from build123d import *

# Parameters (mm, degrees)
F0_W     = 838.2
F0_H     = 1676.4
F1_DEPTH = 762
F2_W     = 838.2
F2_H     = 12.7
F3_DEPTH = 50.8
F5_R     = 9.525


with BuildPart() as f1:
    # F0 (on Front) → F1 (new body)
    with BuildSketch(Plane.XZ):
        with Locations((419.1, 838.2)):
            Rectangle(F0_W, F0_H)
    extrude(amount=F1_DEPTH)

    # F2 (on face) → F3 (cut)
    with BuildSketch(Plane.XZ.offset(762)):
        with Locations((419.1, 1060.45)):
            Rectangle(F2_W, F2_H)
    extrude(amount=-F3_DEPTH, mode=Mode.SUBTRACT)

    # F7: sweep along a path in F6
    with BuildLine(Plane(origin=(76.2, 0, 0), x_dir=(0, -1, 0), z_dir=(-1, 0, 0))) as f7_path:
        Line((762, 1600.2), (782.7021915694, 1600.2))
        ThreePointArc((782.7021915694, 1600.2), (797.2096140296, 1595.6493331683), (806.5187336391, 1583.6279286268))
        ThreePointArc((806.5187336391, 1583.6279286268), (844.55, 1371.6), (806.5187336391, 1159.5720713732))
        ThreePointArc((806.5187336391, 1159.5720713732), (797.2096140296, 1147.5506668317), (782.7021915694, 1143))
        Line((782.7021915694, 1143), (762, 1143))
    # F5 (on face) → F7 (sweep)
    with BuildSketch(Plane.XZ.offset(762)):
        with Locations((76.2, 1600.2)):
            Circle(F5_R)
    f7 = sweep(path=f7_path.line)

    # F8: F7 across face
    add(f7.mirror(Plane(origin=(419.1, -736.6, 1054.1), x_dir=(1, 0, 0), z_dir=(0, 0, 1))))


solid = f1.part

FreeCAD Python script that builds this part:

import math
import FreeCAD as App
import Part
import Sketcher

V = App.Vector
Q = App.Units.Quantity

doc = App.newDocument("Part")
body = doc.addObject("PartDesign::Body", "Body")

# Sketch on XZ plane
sketch1 = doc.addObject("Sketcher::SketchObject", "Sketch")
body.addObject(sketch1)
sketch1.AttachmentSupport = (doc.XZ_Plane, [""])
sketch1.MapMode = "FlatFace"
sketch1.addGeometry([
    Part.LineSegment(V(0, 1676, 0), V(0, 0, 0)),
    Part.LineSegment(V(0, 0, 0), V(838, 0, 0)),
    Part.LineSegment(V(838, 0, 0), V(838, 1676, 0)),
    Part.LineSegment(V(838, 1676, 0), V(0, 1676, 0)),
], False)
sketch1.addConstraint([
    Sketcher.Constraint("Coincident", 0, 2, 1, 1),
    Sketcher.Constraint("Coincident", 1, 2, 2, 1),
    Sketcher.Constraint("Coincident", 2, 2, 3, 1),
    Sketcher.Constraint("Coincident", 3, 2, 0, 1),
    Sketcher.Constraint("Vertical", 0),
    Sketcher.Constraint("Horizontal", 1),
    Sketcher.Constraint("Vertical", 2),
    Sketcher.Constraint("Horizontal", 3),
    Sketcher.Constraint("Coincident", 0, 2, -1, 1),
    Sketcher.Constraint("DistanceX", 1, 1, 1, 2, Q("33 in")),
    Sketcher.Constraint("DistanceY", 0, 2, 0, 1, Q("66 in")),
])
pad1 = doc.addObject("PartDesign::Pad", "Pad")
body.addObject(pad1)
pad1.Profile = sketch1
pad1.Length = Q("30 in")

# Sketch on XZ plane
sketch2 = doc.addObject("Sketcher::SketchObject", "Sketch001")
body.addObject(sketch2)
sketch2.AttachmentSupport = (doc.XZ_Plane, [""])
sketch2.MapMode = "FlatFace"
sketch2.AttachmentOffset = App.Placement(V(0, 0, 30 * 25.4), App.Rotation())
sketch2.addGeometry([
    Part.LineSegment(V(0, 1067, 0), V(0, 1054, 0)),
    Part.LineSegment(V(0, 1054, 0), V(838, 1054, 0)),
    Part.LineSegment(V(838, 1054, 0), V(838, 1067, 0)),
    Part.LineSegment(V(838, 1067, 0), V(0, 1067, 0)),
], False)
sketch2.addConstraint([
    Sketcher.Constraint("Coincident", 0, 2, 1, 1),
    Sketcher.Constraint("Coincident", 1, 2, 2, 1),
    Sketcher.Constraint("Coincident", 2, 2, 3, 1),
    Sketcher.Constraint("Coincident", 3, 2, 0, 1),
    Sketcher.Constraint("Vertical", 0),
    Sketcher.Constraint("Horizontal", 1),
    Sketcher.Constraint("Vertical", 2),
    Sketcher.Constraint("Horizontal", 3),
    Sketcher.Constraint("PointOnObject", 0, 2, -2),
    Sketcher.Constraint("DistanceX", 1, 1, 1, 2, Q("33 in")),
    Sketcher.Constraint("DistanceY", 0, 2, 0, 1, Q("0.5 in")),
    Sketcher.Constraint("DistanceY", -1, 1, 2, 2, Q("42 in")),
])
pocket1 = doc.addObject("PartDesign::Pocket", "Pocket")
body.addObject(pocket1)
pocket1.Profile = sketch2
pocket1.Length = Q("2 in")

# Sketch on XZ plane
sketch3 = doc.addObject("Sketcher::SketchObject", "Sketch002")
body.addObject(sketch3)
sketch3.AttachmentSupport = (doc.XZ_Plane, [""])
sketch3.MapMode = "FlatFace"
sketch3.AttachmentOffset = App.Placement(V(0, 0, 30 * 25.4), App.Rotation())
sketch3.addGeometry(Part.Circle(V(76, 1600, 0), V(0, 0, 1), 10), False)
sketch3.addConstraint([
    Sketcher.Constraint("Diameter", 0, Q("0.75 in")),
    Sketcher.Constraint("DistanceX", -1, 1, 0, 3, Q("3 in")),
    Sketcher.Constraint("DistanceY", -1, 1, 0, 3, Q("63 in")),
])

# Sketch on YZ plane
sketch4 = doc.addObject("Sketcher::SketchObject", "Sketch003")
body.addObject(sketch4)
sketch4.AttachmentSupport = (doc.YZ_Plane, [""])
sketch4.MapMode = "FlatFace"
sketch4.AttachmentOffset = App.Placement(V(0, 0, 3 * 25.4), App.Rotation())
sketch4.addGeometry([
    Part.LineSegment(V(-762, 1600, 0), V(-783, 1600, 0)),  # 0
    Part.ArcOfCircle(Part.Circle(V(-783, 1575, 0), V(0, 0, 1), 25), math.radians(90), math.radians(160)),  # 1
    Part.ArcOfCircle(Part.Circle(V(-234, 1372, 0), V(0, 0, 1), 610), math.radians(160), math.radians(200)),  # 2
    Part.ArcOfCircle(Part.Circle(V(-783, 1168, 0), V(0, 0, 1), 25), math.radians(-160), math.radians(-90)),  # 3
    Part.LineSegment(V(-783, 1143, 0), V(-762, 1143, 0)),  # 4
], False)
sketch4.addConstraint([
    Sketcher.Constraint("Tangent", 0, 2, 1, 1),
    Sketcher.Constraint("Tangent", 1, 2, 2, 1),
    Sketcher.Constraint("Tangent", 2, 2, 3, 1),
    Sketcher.Constraint("Tangent", 3, 2, 4, 1),
    Sketcher.Constraint("Horizontal", 0),
    Sketcher.Constraint("Horizontal", 4),
    Sketcher.Constraint("Equal", 1, 3),
    Sketcher.Constraint("Vertical", 1, 3, 3, 3),
    Sketcher.Constraint("Vertical", 0, 1, 4, 2),
    Sketcher.Constraint("Radius", 1, Q("1 in")),
    Sketcher.Constraint("DistanceY", -1, 1, 1, 3, Q("62 in")),
    Sketcher.Constraint("DistanceY", -1, 1, 2, 3, Q("54 in")),
    Sketcher.Constraint("DistanceX", 0, 1, -1, 1, Q("30 in")),
    Sketcher.Constraint("Radius", 2, 610.053571),
    Sketcher.Constraint("DistanceX", 0, 2, 0, 1, 20.702192),
])
doc.recompute()

additivepipe = doc.addObject("PartDesign::AdditivePipe", "AdditivePipe")
body.addObject(additivepipe)
additivepipe.Profile = sketch3
additivepipe.Spine = (sketch4, ["Edge1", "Edge2", "Edge3", "Edge4", "Edge5"])
doc.recompute()

datumplane = doc.addObject("PartDesign::Plane", "DatumPlane")
body.addObject(datumplane)
datumplane.AttachmentSupport = (doc.XY_Plane, [""])
datumplane.MapMode = "FlatFace"
datumplane.AttachmentOffset = App.Placement(V(0, 0, 41.5 * 25.4), App.Rotation())
mirrored = doc.addObject("PartDesign::Mirrored", "Mirrored")
body.addObject(mirrored)
mirrored.Originals = [additivepipe]
mirrored.MirrorPlane = (datumplane, [""])
body.Tip = mirrored

doc.recompute()
